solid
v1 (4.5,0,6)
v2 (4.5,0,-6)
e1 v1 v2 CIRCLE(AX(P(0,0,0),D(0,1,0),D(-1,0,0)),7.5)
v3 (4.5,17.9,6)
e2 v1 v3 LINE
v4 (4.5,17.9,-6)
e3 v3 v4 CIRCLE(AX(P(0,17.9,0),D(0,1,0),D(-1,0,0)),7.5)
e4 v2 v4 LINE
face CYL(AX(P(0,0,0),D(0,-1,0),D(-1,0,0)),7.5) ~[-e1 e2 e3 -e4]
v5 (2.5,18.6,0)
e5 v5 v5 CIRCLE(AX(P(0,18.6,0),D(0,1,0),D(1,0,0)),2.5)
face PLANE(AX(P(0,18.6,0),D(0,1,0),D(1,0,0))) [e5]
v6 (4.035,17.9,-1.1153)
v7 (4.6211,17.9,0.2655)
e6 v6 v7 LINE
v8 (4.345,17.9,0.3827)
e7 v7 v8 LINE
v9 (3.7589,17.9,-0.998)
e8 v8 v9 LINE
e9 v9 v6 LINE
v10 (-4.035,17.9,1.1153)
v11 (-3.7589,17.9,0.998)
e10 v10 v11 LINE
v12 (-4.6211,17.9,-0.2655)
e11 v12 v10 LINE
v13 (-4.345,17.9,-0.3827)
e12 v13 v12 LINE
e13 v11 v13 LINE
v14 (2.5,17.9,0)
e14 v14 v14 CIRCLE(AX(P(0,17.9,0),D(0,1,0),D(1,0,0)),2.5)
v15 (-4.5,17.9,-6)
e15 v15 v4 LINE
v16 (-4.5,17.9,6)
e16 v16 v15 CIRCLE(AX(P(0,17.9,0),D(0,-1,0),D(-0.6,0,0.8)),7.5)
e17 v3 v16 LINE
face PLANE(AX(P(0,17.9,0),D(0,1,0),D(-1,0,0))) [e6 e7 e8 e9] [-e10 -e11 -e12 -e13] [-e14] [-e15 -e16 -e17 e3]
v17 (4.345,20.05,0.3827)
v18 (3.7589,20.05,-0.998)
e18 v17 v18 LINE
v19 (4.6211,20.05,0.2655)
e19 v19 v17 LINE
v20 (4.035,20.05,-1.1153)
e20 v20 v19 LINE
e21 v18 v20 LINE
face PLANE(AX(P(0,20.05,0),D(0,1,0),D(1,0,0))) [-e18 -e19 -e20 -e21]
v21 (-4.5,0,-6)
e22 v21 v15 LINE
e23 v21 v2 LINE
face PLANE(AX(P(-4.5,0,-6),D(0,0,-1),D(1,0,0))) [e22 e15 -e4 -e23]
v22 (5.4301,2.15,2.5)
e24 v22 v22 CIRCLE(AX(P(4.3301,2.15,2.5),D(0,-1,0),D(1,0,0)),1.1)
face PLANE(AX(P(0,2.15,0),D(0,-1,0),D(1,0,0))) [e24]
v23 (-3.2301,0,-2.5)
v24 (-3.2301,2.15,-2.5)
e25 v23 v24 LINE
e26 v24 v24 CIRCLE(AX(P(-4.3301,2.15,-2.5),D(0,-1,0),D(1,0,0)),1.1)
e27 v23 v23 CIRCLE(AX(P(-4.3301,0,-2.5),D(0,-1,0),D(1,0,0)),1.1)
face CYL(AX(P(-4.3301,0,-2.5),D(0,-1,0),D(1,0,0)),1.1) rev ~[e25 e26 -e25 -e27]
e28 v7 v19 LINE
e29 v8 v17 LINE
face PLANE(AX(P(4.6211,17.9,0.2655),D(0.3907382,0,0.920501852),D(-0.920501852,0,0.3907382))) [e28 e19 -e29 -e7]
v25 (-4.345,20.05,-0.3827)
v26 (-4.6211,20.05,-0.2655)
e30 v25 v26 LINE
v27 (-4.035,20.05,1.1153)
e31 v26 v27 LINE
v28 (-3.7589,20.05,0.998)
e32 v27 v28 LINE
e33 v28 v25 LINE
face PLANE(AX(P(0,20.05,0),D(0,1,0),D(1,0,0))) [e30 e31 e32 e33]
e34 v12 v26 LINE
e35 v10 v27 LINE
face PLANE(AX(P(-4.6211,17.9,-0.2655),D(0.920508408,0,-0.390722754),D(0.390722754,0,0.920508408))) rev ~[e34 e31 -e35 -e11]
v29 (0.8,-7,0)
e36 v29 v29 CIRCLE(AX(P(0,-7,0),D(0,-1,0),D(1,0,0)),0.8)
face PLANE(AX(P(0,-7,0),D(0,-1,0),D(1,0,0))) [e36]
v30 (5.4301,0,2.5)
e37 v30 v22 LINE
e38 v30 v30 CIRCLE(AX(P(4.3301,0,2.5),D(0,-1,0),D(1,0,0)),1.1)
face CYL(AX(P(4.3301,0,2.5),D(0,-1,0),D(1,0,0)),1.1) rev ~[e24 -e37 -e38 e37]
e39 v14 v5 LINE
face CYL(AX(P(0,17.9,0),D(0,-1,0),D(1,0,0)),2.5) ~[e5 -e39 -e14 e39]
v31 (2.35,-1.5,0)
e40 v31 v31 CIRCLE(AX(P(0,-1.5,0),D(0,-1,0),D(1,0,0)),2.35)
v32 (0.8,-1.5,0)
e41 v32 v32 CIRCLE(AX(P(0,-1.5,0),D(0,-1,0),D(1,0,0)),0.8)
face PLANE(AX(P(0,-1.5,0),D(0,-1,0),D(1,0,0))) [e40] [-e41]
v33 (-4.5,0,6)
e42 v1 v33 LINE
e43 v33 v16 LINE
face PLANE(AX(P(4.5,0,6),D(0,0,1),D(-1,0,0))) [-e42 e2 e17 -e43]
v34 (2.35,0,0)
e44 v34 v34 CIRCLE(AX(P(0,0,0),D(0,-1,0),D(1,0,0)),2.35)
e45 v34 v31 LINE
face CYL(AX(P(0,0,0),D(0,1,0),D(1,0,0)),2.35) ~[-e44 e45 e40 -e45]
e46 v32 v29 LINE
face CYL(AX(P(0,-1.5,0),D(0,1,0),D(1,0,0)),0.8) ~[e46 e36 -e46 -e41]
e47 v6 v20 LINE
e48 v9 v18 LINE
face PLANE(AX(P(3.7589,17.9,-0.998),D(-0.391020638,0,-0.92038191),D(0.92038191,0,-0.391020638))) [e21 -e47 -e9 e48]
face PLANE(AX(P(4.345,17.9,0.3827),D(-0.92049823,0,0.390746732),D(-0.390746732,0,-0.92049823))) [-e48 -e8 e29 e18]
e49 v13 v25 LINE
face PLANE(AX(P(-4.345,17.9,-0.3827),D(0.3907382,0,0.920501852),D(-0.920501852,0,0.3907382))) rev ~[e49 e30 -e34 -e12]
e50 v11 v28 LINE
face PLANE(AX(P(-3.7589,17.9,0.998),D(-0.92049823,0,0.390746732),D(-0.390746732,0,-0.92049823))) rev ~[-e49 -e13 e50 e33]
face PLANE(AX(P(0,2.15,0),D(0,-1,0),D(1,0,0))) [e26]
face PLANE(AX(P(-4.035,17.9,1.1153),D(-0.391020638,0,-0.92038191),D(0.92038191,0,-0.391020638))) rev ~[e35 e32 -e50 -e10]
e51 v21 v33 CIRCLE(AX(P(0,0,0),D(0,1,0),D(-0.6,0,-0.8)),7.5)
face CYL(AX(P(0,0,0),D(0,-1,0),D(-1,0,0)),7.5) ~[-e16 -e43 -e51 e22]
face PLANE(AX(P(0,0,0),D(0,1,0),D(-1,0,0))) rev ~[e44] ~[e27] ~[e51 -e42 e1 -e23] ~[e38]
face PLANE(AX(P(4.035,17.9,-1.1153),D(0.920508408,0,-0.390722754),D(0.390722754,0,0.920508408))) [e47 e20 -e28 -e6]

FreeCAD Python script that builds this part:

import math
import FreeCAD as App
import Part
import Sketcher
from FreeCAD import Vector
Q = App.Units.Quantity

doc = App.newDocument("Part")
body = doc.addObject("PartDesign::Body", "Body")

sketch1 = doc.addObject("Sketcher::SketchObject", "Sketch")
body.addObject(sketch1)
sketch1.AttachmentSupport = (doc.XZ_Plane, [""])
sketch1.MapMode = "FlatFace"
sketch1.addGeometry([
    Part.ArcOfCircle(Part.Circle(Vector(0, 0, 0), Vector(0, 0, 1), 7.5), math.radians(126.869898), math.radians(233.130102)),
    Part.LineSegment(Vector(-4.5, 6, 0), Vector(4.5, 6, 0)),
    Part.ArcOfCircle(Part.Circle(Vector(0, 0, 0), Vector(0, 0, 1), 7.5), math.radians(-53.130102), math.radians(53.130102)),
    Part.LineSegment(Vector(4.5, -6, 0), Vector(-4.5, -6, 0)),
], False)
sketch1.addConstraint([
    Sketcher.Constraint("Coincident", 0, 1, 1, 1),
    Sketcher.Constraint("Coincident", 1, 2, 2, 2),
    Sketcher.Constraint("Coincident", 2, 1, 3, 1),
    Sketcher.Constraint("Coincident", 3, 2, 0, 2),
    Sketcher.Constraint("Horizontal", 1),
    Sketcher.Constraint("Horizontal", 3),
    Sketcher.Constraint("Coincident", 0, 3, -1, 1),
    Sketcher.Constraint("Coincident", 2, 3, -1, 1),
    Sketcher.Constraint("Equal", 0, 2),
    Sketcher.Constraint("Vertical", 1, 2, 2, 1),
    Sketcher.Constraint("Radius", 0, 7.5),
    Sketcher.Constraint("DistanceY", 2, 1, 1, 2, 12.0),
])
pad1 = doc.addObject("PartDesign::Pad", "Pad")
body.addObject(pad1)
pad1.Profile = sketch1
pad1.Length = 17.9
pad1.Reversed = True

sketch2 = doc.addObject("Sketcher::SketchObject", "Sketch001")
body.addObject(sketch2)
sketch2.AttachmentSupport = (doc.XZ_Plane, [""])
sketch2.MapMode = "FlatFace"
sketch2.addGeometry(Part.Circle(Vector(0, 0, 0), Vector(0, 0, 1), 2.35), False)
sketch2.addConstraint([
    Sketcher.Constraint("Coincident", 0, 3, -1, 1),
    Sketcher.Constraint("Diameter", 0, 4.7),
])
pad2 = doc.addObject("PartDesign::Pad", "Pad001")
body.addObject(pad2)
pad2.Profile = sketch2
pad2.Length = 1.5

sketch3 = doc.addObject("Sketcher::SketchObject", "Sketch002")
body.addObject(sketch3)
sketch3.AttachmentSupport = (doc.XZ_Plane, [""])
sketch3.MapMode = "FlatFace"
sketch3.AttachmentOffset = App.Placement(Vector(0, 0, 1.5), App.Rotation())
sketch3.addGeometry(Part.Circle(Vector(0, 0, 0), Vector(0, 0, 1), 0.8), False)
sketch3.addConstraint([
    Sketcher.Constraint("Coincident", 0, 3, -1, 1),
    Sketcher.Constraint("Diameter", 0, 1.6),
])
pad3 = doc.addObject("PartDesign::Pad", "Pad002")
body.addObject(pad3)
pad3.Profile = sketch3
pad3.Length = 5.5

sketch4 = doc.addObject("Sketcher::SketchObject", "Sketch003")
body.addObject(sketch4)
sketch4.AttachmentSupport = (doc.XZ_Plane, [""])
sketch4.MapMode = "FlatFace"
sketch4.AttachmentOffset = App.Placement(Vector(0, 0, -17.9), App.Rotation())
sketch4.addGeometry(Part.Circle(Vector(0, 0, 0), Vector(0, 0, 1), 2.5), False)
sketch4.addConstraint([
    Sketcher.Constraint("Coincident", 0, 3, -1, 1),
    Sketcher.Constraint("Diameter", 0, 5.0),
])
pad4 = doc.addObject("PartDesign::Pad", "Pad003")
body.addObject(pad4)
pad4.Profile = sketch4
pad4.Length = 0.7
pad4.Reversed = True

sketch5 = doc.addObject("Sketcher::SketchObject", "Sketch004")
body.addObject(sketch5)
sketch5.AttachmentSupport = (doc.XZ_Plane, [""])
sketch5.MapMode = "FlatFace"
sketch5.AttachmentOffset = App.Placement(Vector(0, 0, -17.9), App.Rotation())
sketch5.addGeometry([
    Part.LineSegment(Vector(4.345, 0.3827, 0), Vector(4.6211, 0.2655, 0)),
    Part.LineSegment(Vector(4.6211, 0.2655, 0), Vector(4.035, -1.1153, 0)),
    Part.LineSegment(Vector(4.035, -1.1153, 0), Vector(3.7589, -0.998, 0)),
    Part.LineSegment(Vector(3.7589, -0.998, 0), Vector(4.345, 0.3827, 0)),
    Part.LineSegment(Vector(-3.7589, 0.998, 0), Vector(-4.345, -0.3827, 0)),
    Part.LineSegment(Vector(-4.345, -0.3827, 0), Vector(-4.6211, -0.2655, 0)),
    Part.LineSegment(Vector(-4.6211, -0.2655, 0), Vector(-4.035, 1.1153, 0)),
    Part.LineSegment(Vector(-4.035, 1.1153, 0), Vector(-3.7589, 0.998, 0)),
], False)
sketch5.addConstraint([
    Sketcher.Constraint("Coincident", 0, 2, 1, 1),
    Sketcher.Constraint("Coincident", 1, 2, 2, 1),
    Sketcher.Constraint("Coincident", 2, 2, 3, 1),
    Sketcher.Constraint("Coincident", 3, 2, 0, 1),
    Sketcher.Constraint("Coincident", 4, 2, 5, 1),
    Sketcher.Constraint("Coincident", 5, 2, 6, 1),
    Sketcher.Constraint("Coincident", 6, 2, 7, 1),
    Sketcher.Constraint("Coincident", 7, 2, 4, 1),
    Sketcher.Constraint("Symmetric", 3, 2, 4, 2, -1, 1),
    Sketcher.Constraint("Symmetric", 0, 2, 5, 2, -1, 1),
    Sketcher.Constraint("Symmetric", 1, 2, 6, 2, -1, 1),
    Sketcher.Constraint("Symmetric", 2, 2, 7, 2, -1, 1),
    Sketcher.Constraint("Perpendicular", 0, 1),
    Sketcher.Constraint("Perpendicular", 1, 2),
    Sketcher.Constraint("Perpendicular", 2, 3),
    Sketcher.Constraint("Distance", 0, 0.3),
    Sketcher.Constraint("Distance", 1, 1.5),
    Sketcher.Constraint("Angle", 0, Q("-23.0004 deg")),
    Sketcher.Constraint("DistanceX", 4, 2, 1, 2, 8.38),
    Sketcher.Constraint("DistanceY", 2, 2, -1, 1, 0.998),
])
pad5 = doc.addObject("PartDesign::Pad", "Pad004")
body.addObject(pad5)
pad5.Profile = sketch5
pad5.Length = 2.15
pad5.Reversed = True

sketch6 = doc.addObject("Sketcher::SketchObject", "Sketch005")
body.addObject(sketch6)
sketch6.AttachmentSupport = (doc.XZ_Plane, [""])
sketch6.MapMode = "FlatFace"
sketch6.addGeometry([
    Part.Circle(Vector(-4.3301, -2.5, 0), Vector(0, 0, 1), 1.1),
    Part.Circle(Vector(4.3301, 2.5, 0), Vector(0, 0, 1), 1.1),
], False)
sketch6.addConstraint([
    Sketcher.Constraint("Equal", 0, 1),
    Sketcher.Constraint("Symmetric", 0, 3, 1, 3, -1, 1),
    Sketcher.Constraint("Diameter", 0, 2.2),
    Sketcher.Constraint("DistanceY", 0, 3, 1, 3, 5.0),
    Sketcher.Constraint("DistanceX", 0, 3, -1, 1, 4.33),
])
pocket1 = doc.addObject("PartDesign::Pocket", "Pocket")
body.addObject(pocket1)
pocket1.Profile = sketch6
pocket1.Length = 2.15

doc.recompute()
